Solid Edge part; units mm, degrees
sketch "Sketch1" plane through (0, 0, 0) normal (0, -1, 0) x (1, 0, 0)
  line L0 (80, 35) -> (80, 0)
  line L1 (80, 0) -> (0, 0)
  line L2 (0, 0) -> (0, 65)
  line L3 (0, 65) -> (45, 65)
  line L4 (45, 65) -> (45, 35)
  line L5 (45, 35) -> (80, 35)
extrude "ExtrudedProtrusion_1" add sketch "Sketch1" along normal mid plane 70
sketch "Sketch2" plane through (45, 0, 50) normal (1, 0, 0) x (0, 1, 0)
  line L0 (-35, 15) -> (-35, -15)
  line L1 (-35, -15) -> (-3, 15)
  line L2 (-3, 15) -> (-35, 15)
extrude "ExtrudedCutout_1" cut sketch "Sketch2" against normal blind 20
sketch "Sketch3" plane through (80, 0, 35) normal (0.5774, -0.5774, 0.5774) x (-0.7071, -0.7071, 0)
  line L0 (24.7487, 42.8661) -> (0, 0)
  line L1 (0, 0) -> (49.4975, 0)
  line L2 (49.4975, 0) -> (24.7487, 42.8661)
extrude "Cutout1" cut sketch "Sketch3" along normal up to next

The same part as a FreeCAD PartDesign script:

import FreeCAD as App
import Part
import Sketcher
Q = App.Units.Quantity


def add_polygon(sketch, points):
    """Adds a closed chain of lines whose ends are joined by coincident constraints."""
    first, n = sketch.GeometryCount, len(points)
    for a, b in zip(points, points[1:] + points[:1]):
        sketch.addGeometry(Part.LineSegment(App.Vector(*a, 0), App.Vector(*b, 0)), False)
    for i in range(n):
        sketch.addConstraint(Sketcher.Constraint("Coincident", first + i, 2, first + (i + 1) % n, 1))

doc = App.newDocument("Part")
body = doc.addObject("PartDesign::Body", "Body")

sketch1 = doc.addObject("Sketcher::SketchObject", "Sketch")
body.addObject(sketch1)
sketch1.AttachmentSupport = (doc.XZ_Plane, [""])
sketch1.MapMode = "FlatFace"
add_polygon(sketch1, [(80, 0), (80, 35), (45, 35), (45, 65), (0, 65), (0, 0)])
sketch1.addConstraint([
    Sketcher.Constraint("Vertical", 0),
    Sketcher.Constraint("Horizontal", 1),
    Sketcher.Constraint("Vertical", 2),
    Sketcher.Constraint("Horizontal", 3),
    Sketcher.Constraint("Vertical", 4),
    Sketcher.Constraint("Horizontal", 5),
    Sketcher.Constraint("Coincident", 4, 2, -1, 1),
    Sketcher.Constraint("Equal", 1, 0),
    Sketcher.Constraint("DistanceX", 1, 2, 1, 1, 35.0),
    Sketcher.Constraint("DistanceX", 3, 2, 3, 1, 45.0),
    Sketcher.Constraint("DistanceY", 2, 1, 2, 2, 30.0),
])
pad1 = doc.addObject("PartDesign::Pad", "Pad")
body.addObject(pad1)
pad1.Profile = sketch1
pad1.Length = 70
pad1.Midplane = True

sketch2 = doc.addObject("Sketcher::SketchObject", "Sketch001")
body.addObject(sketch2)
sketch2.AttachmentSupport = (doc.YZ_Plane, [""])
sketch2.MapMode = "FlatFace"
sketch2.AttachmentOffset = App.Placement(App.Vector(0, 0, 45), App.Rotation())
add_polygon(sketch2, [(-3, 65), (-35, 65), (-35, 35)])
sketch2.addConstraint([
    Sketcher.Constraint("Horizontal", 0),
    Sketcher.Constraint("Vertical", 1),
    Sketcher.Constraint("DistanceX", 0, 2, 0, 1, 32.0),
    Sketcher.Constraint("DistanceY", 1, 2, 1, 1, 30.0),
    Sketcher.Constraint("DistanceX", 0, 2, -1, 1, 35.0),
    Sketcher.Constraint("DistanceY", -1, 1, 0, 2, 65.0),
])
pocket1 = doc.addObject("PartDesign::Pocket", "Pocket")
body.addObject(pocket1)
pocket1.Profile = sketch2
pocket1.Length = 20

sketch3 = doc.addObject("Sketcher::SketchObject", "Sketch002")
body.addObject(sketch3)
sketch3.Placement = App.Placement(App.Vector(80, 0, 35), App.Rotation(App.Vector(-0.707106781, -0.707106781, 0), App.Vector(0.40824829, -0.40824829, -0.81649658), App.Vector(0.577350269, -0.577350269, 0.577350269), "ZXY"))
add_polygon(sketch3, [(49.4975, 0), (24.7487, 42.8661), (0, 0)])
sketch3.addConstraint([
    Sketcher.Constraint("Horizontal", 2),
    Sketcher.Constraint("Coincident", 1, 2, -1, 1),
    Sketcher.Constraint("Equal", 0, 1),
    Sketcher.Constraint("Angle", 0, Q("120 deg")),
    Sketcher.Constraint("DistanceX", 2, 1, 2, 2, 49.4975),
])
pocket2 = doc.addObject("PartDesign::Pocket", "Pocket001")
body.addObject(pocket2)
pocket2.Profile = sketch3
pocket2.Length = 20.2073
pocket2.Reversed = True

doc.recompute()
